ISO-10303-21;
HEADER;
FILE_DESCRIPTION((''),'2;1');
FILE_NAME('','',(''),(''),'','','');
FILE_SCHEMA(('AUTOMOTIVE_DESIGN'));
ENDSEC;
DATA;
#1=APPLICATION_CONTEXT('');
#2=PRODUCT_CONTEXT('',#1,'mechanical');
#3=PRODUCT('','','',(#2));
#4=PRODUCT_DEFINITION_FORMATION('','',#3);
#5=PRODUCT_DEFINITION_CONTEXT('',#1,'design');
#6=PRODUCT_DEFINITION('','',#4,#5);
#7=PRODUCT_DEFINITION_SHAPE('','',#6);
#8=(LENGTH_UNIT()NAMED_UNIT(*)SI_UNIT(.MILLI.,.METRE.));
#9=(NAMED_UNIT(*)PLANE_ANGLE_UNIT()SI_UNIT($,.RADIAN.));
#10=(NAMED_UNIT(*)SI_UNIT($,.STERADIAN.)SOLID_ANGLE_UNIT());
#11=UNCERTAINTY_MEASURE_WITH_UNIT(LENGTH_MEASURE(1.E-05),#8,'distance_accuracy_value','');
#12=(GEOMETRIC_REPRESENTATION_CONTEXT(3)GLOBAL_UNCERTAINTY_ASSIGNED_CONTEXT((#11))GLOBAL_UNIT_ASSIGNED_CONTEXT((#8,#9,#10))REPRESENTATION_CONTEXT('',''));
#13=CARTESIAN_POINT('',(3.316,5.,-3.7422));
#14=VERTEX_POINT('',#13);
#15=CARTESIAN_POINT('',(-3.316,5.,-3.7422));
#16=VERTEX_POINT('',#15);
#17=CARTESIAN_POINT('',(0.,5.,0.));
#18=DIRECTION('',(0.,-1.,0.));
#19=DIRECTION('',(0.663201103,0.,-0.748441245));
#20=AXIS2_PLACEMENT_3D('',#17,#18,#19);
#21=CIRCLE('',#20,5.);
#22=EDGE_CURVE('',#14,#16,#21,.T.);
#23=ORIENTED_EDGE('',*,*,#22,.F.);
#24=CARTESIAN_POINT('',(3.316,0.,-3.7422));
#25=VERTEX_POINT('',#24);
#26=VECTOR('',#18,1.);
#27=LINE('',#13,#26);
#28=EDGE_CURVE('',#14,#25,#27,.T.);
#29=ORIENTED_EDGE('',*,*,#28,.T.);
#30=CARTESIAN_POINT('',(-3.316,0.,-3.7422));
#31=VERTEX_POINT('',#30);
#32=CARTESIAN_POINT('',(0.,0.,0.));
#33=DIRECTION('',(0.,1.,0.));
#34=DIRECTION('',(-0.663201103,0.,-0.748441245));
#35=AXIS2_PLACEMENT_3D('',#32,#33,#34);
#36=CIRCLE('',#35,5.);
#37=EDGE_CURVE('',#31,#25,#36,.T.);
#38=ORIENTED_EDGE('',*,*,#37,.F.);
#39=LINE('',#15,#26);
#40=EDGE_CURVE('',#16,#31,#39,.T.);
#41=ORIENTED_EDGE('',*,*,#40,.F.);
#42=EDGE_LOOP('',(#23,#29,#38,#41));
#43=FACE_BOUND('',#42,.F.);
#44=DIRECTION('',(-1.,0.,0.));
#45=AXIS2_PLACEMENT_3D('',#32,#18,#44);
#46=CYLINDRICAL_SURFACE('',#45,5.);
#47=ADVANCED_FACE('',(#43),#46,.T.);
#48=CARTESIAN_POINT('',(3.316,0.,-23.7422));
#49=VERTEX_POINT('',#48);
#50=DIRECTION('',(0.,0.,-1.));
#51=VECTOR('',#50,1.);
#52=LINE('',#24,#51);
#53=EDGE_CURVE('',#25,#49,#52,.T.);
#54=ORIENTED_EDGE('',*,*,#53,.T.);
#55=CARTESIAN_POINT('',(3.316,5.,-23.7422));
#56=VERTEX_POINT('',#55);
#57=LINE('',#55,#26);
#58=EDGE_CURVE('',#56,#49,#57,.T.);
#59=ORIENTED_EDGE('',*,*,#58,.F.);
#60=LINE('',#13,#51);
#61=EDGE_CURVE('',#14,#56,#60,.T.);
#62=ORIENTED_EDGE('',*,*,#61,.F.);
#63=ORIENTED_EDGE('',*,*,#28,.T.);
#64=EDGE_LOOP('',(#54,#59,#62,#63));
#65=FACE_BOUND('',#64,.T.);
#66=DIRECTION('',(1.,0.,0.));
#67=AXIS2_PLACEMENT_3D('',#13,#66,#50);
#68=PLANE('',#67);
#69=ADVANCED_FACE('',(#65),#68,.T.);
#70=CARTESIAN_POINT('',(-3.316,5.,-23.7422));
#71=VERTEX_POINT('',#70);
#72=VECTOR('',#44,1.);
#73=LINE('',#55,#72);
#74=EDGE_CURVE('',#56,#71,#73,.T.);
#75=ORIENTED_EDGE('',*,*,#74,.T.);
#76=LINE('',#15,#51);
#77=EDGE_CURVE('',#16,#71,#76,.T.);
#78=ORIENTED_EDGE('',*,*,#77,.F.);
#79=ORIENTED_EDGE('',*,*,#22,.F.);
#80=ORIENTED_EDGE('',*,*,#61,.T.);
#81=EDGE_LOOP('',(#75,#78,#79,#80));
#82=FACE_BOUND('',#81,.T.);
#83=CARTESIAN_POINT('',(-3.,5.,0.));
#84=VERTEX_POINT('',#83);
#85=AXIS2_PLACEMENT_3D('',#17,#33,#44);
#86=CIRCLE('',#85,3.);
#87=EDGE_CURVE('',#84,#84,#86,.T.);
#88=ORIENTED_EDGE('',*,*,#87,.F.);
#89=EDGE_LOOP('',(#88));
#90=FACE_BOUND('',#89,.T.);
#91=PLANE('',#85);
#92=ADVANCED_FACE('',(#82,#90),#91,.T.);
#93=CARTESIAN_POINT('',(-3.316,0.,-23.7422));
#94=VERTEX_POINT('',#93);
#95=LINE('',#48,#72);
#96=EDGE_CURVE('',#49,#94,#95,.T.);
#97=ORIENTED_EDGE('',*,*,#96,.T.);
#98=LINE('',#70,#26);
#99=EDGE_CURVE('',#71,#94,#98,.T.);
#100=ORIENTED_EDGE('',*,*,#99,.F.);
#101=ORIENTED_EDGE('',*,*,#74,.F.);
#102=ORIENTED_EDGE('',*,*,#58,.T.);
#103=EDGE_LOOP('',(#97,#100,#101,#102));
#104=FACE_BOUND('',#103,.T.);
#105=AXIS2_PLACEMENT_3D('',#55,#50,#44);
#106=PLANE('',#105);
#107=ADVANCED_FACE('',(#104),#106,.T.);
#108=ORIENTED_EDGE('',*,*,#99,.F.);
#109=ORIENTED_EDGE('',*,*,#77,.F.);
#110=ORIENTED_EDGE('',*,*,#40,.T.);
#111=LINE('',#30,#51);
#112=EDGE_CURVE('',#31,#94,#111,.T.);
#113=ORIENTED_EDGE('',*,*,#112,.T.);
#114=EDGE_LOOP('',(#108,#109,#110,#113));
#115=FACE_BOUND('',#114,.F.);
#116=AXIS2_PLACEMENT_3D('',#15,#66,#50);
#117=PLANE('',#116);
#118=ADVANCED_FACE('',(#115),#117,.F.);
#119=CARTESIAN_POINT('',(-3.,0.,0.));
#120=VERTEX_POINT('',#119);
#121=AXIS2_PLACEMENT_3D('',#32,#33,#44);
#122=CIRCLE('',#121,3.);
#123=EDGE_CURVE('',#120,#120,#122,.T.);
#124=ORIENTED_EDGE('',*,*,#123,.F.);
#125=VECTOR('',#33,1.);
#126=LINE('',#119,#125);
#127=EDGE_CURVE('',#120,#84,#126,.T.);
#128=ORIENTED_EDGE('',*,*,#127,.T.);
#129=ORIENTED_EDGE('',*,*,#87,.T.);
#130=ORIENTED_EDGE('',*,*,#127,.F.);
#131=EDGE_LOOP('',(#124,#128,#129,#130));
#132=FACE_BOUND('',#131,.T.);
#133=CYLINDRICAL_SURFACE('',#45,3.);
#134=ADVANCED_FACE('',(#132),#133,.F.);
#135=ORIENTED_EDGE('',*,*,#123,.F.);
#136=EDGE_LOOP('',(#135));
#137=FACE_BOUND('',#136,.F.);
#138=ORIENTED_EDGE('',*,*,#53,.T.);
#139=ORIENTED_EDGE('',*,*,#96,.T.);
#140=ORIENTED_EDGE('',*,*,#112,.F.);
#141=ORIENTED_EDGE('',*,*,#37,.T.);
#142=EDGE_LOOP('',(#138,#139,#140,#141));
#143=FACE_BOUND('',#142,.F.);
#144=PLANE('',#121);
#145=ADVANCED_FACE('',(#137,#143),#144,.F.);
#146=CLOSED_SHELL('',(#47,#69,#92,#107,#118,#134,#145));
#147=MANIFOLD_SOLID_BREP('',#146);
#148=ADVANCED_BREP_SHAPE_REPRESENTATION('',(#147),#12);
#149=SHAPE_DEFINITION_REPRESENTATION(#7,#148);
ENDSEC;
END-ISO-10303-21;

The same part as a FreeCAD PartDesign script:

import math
import FreeCAD as App
import Part
import Sketcher
from FreeCAD import Vector
Q = App.Units.Quantity

doc = App.newDocument("Part")
body = doc.addObject("PartDesign::Body", "Body")

# Sketch on XZ plane
sketch1 = body.newObject("Sketcher::SketchObject", "Sketch")
sketch1.AttachmentSupport = (doc.getObject("XZ_Plane"), [""])
sketch1.MapMode = "FlatFace"
sketch1.addGeometry([
    Part.Circle(Vector(0, 0, 0), Vector(0, 0, 1), 5),
    Part.Circle(Vector(0, 0, 0), Vector(0, 0, 1), 3),
], False)
sketch1.addConstraint([
    Sketcher.Constraint("Coincident", 0, 3, -1, 1),
    Sketcher.Constraint("Coincident", 1, 3, -1, 1),
    Sketcher.Constraint("Diameter", 0, Q("10 mm")),
    Sketcher.Constraint("Diameter", 1, Q("6 mm")),
])
pad1 = body.newObject("PartDesign::Pad", "Pad")
pad1.Profile = sketch1
pad1.Length = 5
pad1.Reversed = True

# Sketch on XZ plane
sketch2 = body.newObject("Sketcher::SketchObject", "Sketch001")
sketch2.AttachmentSupport = (doc.getObject("XZ_Plane"), [""])
sketch2.MapMode = "FlatFace"
sketch2.AttachmentOffset = App.Placement(Vector(0, 0, -5), App.Rotation())
sketch2.addGeometry([
    Part.LineSegment(Vector(-3, -24, 0), Vector(-3, -4, 0)),
    Part.ArcOfCircle(Part.Circle(Vector(0, 0, 0), Vector(0, 0, 1), 5), math.radians(-132), math.radians(-48)),
    Part.LineSegment(Vector(3, -4, 0), Vector(3, -24, 0)),
    Part.LineSegment(Vector(3, -24, 0), Vector(-3, -24, 0)),
], False)
sketch2.addConstraint([
    Sketcher.Constraint("Coincident", 0, 2, 1, 1),
    Sketcher.Constraint("Coincident", 1, 2, 2, 1),
    Sketcher.Constraint("Coincident", 2, 2, 3, 1),
    Sketcher.Constraint("Coincident", 3, 2, 0, 1),
    Sketcher.Constraint("Vertical", 0),
    Sketcher.Constraint("Vertical", 2),
    Sketcher.Constraint("Horizontal", 3),
    Sketcher.Constraint("Coincident", 1, 3, -1, 1),
    Sketcher.Constraint("Horizontal", 0, 2, 1, 2),
    Sketcher.Constraint("DistanceY", 0, 1, 0, 2, Q("20 mm")),
    Sketcher.Constraint("Radius", 1, Q("5 mm")),
    Sketcher.Constraint("DistanceX", 3, 2, 3, 1, Q("6.632 mm")),
])
pad2 = body.newObject("PartDesign::Pad", "Pad001")
pad2.Profile = sketch2
pad2.Length = 5

doc.recompute()
